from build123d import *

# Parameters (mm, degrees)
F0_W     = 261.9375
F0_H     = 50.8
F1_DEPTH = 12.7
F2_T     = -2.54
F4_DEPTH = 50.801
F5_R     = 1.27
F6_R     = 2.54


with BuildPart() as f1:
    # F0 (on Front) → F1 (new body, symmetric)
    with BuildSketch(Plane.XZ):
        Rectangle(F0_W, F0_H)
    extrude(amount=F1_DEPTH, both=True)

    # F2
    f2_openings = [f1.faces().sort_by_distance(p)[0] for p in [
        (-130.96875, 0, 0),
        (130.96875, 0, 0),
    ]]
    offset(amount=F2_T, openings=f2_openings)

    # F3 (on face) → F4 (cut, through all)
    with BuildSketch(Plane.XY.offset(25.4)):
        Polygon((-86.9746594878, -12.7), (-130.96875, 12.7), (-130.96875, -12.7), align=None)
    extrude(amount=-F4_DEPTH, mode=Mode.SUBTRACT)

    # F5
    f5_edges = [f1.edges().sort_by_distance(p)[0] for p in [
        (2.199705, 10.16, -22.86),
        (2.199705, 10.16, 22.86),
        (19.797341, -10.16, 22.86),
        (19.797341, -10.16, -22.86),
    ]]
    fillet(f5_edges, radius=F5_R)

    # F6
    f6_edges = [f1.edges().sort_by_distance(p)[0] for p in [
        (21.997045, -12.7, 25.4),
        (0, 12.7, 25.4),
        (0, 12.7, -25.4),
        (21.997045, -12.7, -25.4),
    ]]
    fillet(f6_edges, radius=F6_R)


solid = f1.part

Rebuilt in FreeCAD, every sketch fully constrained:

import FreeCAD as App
import Part
import Sketcher

V = App.Vector
Q = App.Units.Quantity


def edges_at(feature, points):
    """Names of the edges that pass closest to the given points."""
    edges = feature.Shape.Edges
    near = lambda p: min(range(len(edges)), key=lambda i: edges[i].distToShape(Part.Vertex(*p))[0])
    return sorted({f"Edge{near(p) + 1}" for p in points})


def faces_at(feature, points):
    """Names of the faces that lie closest to the given points."""
    faces = feature.Shape.Faces
    near = lambda p: min(range(len(faces)), key=lambda i: faces[i].distToShape(Part.Vertex(*p))[0])
    return sorted({f"Face{near(p) + 1}" for p in points})

doc = App.newDocument("Part")
body = doc.addObject("PartDesign::Body", "Body")

sketch1 = doc.addObject("Sketcher::SketchObject", "Sketch")
body.addObject(sketch1)
sketch1.AttachmentSupport = (doc.XZ_Plane, [""])
sketch1.MapMode = "FlatFace"
sketch1.addGeometry(Part.LineSegment(V(-130.96875, 25.4, 0), V(-130.96875, -25.4, 0)), False)
sketch1.addGeometry(Part.LineSegment(V(-130.96875, -25.4, 0), V(130.96875, -25.4, 0)), False)
sketch1.addGeometry(Part.LineSegment(V(130.96875, -25.4, 0), V(130.96875, 25.4, 0)), False)
sketch1.addGeometry(Part.LineSegment(V(130.96875, 25.4, 0), V(-130.96875, 25.4, 0)), False)
sketch1.addConstraint(Sketcher.Constraint("Coincident", 0, 2, 1, 1))
sketch1.addConstraint(Sketcher.Constraint("Coincident", 1, 2, 2, 1))
sketch1.addConstraint(Sketcher.Constraint("Coincident", 2, 2, 3, 1))
sketch1.addConstraint(Sketcher.Constraint("Coincident", 3, 2, 0, 1))
sketch1.addConstraint(Sketcher.Constraint("Vertical", 0))
sketch1.addConstraint(Sketcher.Constraint("Horizontal", 1))
sketch1.addConstraint(Sketcher.Constraint("Vertical", 2))
sketch1.addConstraint(Sketcher.Constraint("Horizontal", 3))
sketch1.addConstraint(Sketcher.Constraint("Symmetric", 0, 2, 2, 2, -1, 1))
sketch1.addConstraint(Sketcher.Constraint("DistanceY", 0, 2, 0, 1, Q("2 in")))
sketch1.addConstraint(Sketcher.Constraint("DistanceX", 1, 1, 1, 2, Q("10.3125 in")))
pad1 = doc.addObject("PartDesign::Pad", "Pad")
body.addObject(pad1)
pad1.Profile = sketch1
pad1.Length = Q("1 in")
pad1.Midplane = True
doc.recompute()

thickness = doc.addObject("PartDesign::Thickness", "Thickness")
body.addObject(thickness)
thickness.Base = (pad1, faces_at(pad1, [(-130.969, 0, 0), (130.969, 0, 0)]))
thickness.Value = Q("0.1 in")
thickness.Reversed = True
thickness.Join = "Arc"

sketch2 = doc.addObject("Sketcher::SketchObject", "Sketch001")
body.addObject(sketch2)
sketch2.AttachmentSupport = (doc.XY_Plane, [""])
sketch2.MapMode = "FlatFace"
sketch2.AttachmentOffset = App.Placement(V(0, 0, 1 * 25.4), App.Rotation())
sketch2.addGeometry(Part.LineSegment(V(-86.974659, -12.7, 0), V(-130.96875, 12.7, 0)), False)
sketch2.addGeometry(Part.LineSegment(V(-130.96875, 12.7, 0), V(-130.96875, -12.7, 0)), False)
sketch2.addGeometry(Part.LineSegment(V(-130.96875, -12.7, 0), V(-86.974659, -12.7, 0)), False)
sketch2.addConstraint(Sketcher.Constraint("Coincident", 0, 2, 1, 1))
sketch2.addConstraint(Sketcher.Constraint("Coincident", 1, 2, 2, 1))
sketch2.addConstraint(Sketcher.Constraint("Coincident", 2, 2, 0, 1))
sketch2.addConstraint(Sketcher.Constraint("Vertical", 1))
sketch2.addConstraint(Sketcher.Constraint("Horizontal", 2))
sketch2.addConstraint(Sketcher.Constraint("DistanceY", 1, 2, 1, 1, Q("1 in")))
sketch2.addConstraint(Sketcher.Constraint("Distance", 0, Q("2 in")))
sketch2.addConstraint(Sketcher.Constraint("DistanceY", -1, 1, 0, 2, Q("0.5 in")))
sketch2.addConstraint(Sketcher.Constraint("DistanceX", 0, 2, -1, 1, Q("5.15625 in")))
pocket1 = doc.addObject("PartDesign::Pocket", "Pocket")
body.addObject(pocket1)
pocket1.Profile = sketch2
pocket1.Type = "ThroughAll"
doc.recompute()

fillet = doc.addObject("PartDesign::Fillet", "Fillet")
body.addObject(fillet)
fillet.Base = (pocket1, edges_at(pocket1, [
    (2.2, 10.16, -22.86),
    (2.2, 10.16, 22.86),
    (19.797, -10.16, 22.86),
    (19.797, -10.16, -22.86),
]))
fillet.Radius = Q("0.05 in")
doc.recompute()

fillet2 = doc.addObject("PartDesign::Fillet", "Fillet001")
body.addObject(fillet2)
fillet2.Base = (fillet, edges_at(fillet, [
    (21.997, -12.7, 25.4),
    (0, 12.7, 25.4),
    (0, 12.7, -25.4),
    (21.997, -12.7, -25.4),
]))
fillet2.Radius = Q("0.1 in")

doc.recompute()
